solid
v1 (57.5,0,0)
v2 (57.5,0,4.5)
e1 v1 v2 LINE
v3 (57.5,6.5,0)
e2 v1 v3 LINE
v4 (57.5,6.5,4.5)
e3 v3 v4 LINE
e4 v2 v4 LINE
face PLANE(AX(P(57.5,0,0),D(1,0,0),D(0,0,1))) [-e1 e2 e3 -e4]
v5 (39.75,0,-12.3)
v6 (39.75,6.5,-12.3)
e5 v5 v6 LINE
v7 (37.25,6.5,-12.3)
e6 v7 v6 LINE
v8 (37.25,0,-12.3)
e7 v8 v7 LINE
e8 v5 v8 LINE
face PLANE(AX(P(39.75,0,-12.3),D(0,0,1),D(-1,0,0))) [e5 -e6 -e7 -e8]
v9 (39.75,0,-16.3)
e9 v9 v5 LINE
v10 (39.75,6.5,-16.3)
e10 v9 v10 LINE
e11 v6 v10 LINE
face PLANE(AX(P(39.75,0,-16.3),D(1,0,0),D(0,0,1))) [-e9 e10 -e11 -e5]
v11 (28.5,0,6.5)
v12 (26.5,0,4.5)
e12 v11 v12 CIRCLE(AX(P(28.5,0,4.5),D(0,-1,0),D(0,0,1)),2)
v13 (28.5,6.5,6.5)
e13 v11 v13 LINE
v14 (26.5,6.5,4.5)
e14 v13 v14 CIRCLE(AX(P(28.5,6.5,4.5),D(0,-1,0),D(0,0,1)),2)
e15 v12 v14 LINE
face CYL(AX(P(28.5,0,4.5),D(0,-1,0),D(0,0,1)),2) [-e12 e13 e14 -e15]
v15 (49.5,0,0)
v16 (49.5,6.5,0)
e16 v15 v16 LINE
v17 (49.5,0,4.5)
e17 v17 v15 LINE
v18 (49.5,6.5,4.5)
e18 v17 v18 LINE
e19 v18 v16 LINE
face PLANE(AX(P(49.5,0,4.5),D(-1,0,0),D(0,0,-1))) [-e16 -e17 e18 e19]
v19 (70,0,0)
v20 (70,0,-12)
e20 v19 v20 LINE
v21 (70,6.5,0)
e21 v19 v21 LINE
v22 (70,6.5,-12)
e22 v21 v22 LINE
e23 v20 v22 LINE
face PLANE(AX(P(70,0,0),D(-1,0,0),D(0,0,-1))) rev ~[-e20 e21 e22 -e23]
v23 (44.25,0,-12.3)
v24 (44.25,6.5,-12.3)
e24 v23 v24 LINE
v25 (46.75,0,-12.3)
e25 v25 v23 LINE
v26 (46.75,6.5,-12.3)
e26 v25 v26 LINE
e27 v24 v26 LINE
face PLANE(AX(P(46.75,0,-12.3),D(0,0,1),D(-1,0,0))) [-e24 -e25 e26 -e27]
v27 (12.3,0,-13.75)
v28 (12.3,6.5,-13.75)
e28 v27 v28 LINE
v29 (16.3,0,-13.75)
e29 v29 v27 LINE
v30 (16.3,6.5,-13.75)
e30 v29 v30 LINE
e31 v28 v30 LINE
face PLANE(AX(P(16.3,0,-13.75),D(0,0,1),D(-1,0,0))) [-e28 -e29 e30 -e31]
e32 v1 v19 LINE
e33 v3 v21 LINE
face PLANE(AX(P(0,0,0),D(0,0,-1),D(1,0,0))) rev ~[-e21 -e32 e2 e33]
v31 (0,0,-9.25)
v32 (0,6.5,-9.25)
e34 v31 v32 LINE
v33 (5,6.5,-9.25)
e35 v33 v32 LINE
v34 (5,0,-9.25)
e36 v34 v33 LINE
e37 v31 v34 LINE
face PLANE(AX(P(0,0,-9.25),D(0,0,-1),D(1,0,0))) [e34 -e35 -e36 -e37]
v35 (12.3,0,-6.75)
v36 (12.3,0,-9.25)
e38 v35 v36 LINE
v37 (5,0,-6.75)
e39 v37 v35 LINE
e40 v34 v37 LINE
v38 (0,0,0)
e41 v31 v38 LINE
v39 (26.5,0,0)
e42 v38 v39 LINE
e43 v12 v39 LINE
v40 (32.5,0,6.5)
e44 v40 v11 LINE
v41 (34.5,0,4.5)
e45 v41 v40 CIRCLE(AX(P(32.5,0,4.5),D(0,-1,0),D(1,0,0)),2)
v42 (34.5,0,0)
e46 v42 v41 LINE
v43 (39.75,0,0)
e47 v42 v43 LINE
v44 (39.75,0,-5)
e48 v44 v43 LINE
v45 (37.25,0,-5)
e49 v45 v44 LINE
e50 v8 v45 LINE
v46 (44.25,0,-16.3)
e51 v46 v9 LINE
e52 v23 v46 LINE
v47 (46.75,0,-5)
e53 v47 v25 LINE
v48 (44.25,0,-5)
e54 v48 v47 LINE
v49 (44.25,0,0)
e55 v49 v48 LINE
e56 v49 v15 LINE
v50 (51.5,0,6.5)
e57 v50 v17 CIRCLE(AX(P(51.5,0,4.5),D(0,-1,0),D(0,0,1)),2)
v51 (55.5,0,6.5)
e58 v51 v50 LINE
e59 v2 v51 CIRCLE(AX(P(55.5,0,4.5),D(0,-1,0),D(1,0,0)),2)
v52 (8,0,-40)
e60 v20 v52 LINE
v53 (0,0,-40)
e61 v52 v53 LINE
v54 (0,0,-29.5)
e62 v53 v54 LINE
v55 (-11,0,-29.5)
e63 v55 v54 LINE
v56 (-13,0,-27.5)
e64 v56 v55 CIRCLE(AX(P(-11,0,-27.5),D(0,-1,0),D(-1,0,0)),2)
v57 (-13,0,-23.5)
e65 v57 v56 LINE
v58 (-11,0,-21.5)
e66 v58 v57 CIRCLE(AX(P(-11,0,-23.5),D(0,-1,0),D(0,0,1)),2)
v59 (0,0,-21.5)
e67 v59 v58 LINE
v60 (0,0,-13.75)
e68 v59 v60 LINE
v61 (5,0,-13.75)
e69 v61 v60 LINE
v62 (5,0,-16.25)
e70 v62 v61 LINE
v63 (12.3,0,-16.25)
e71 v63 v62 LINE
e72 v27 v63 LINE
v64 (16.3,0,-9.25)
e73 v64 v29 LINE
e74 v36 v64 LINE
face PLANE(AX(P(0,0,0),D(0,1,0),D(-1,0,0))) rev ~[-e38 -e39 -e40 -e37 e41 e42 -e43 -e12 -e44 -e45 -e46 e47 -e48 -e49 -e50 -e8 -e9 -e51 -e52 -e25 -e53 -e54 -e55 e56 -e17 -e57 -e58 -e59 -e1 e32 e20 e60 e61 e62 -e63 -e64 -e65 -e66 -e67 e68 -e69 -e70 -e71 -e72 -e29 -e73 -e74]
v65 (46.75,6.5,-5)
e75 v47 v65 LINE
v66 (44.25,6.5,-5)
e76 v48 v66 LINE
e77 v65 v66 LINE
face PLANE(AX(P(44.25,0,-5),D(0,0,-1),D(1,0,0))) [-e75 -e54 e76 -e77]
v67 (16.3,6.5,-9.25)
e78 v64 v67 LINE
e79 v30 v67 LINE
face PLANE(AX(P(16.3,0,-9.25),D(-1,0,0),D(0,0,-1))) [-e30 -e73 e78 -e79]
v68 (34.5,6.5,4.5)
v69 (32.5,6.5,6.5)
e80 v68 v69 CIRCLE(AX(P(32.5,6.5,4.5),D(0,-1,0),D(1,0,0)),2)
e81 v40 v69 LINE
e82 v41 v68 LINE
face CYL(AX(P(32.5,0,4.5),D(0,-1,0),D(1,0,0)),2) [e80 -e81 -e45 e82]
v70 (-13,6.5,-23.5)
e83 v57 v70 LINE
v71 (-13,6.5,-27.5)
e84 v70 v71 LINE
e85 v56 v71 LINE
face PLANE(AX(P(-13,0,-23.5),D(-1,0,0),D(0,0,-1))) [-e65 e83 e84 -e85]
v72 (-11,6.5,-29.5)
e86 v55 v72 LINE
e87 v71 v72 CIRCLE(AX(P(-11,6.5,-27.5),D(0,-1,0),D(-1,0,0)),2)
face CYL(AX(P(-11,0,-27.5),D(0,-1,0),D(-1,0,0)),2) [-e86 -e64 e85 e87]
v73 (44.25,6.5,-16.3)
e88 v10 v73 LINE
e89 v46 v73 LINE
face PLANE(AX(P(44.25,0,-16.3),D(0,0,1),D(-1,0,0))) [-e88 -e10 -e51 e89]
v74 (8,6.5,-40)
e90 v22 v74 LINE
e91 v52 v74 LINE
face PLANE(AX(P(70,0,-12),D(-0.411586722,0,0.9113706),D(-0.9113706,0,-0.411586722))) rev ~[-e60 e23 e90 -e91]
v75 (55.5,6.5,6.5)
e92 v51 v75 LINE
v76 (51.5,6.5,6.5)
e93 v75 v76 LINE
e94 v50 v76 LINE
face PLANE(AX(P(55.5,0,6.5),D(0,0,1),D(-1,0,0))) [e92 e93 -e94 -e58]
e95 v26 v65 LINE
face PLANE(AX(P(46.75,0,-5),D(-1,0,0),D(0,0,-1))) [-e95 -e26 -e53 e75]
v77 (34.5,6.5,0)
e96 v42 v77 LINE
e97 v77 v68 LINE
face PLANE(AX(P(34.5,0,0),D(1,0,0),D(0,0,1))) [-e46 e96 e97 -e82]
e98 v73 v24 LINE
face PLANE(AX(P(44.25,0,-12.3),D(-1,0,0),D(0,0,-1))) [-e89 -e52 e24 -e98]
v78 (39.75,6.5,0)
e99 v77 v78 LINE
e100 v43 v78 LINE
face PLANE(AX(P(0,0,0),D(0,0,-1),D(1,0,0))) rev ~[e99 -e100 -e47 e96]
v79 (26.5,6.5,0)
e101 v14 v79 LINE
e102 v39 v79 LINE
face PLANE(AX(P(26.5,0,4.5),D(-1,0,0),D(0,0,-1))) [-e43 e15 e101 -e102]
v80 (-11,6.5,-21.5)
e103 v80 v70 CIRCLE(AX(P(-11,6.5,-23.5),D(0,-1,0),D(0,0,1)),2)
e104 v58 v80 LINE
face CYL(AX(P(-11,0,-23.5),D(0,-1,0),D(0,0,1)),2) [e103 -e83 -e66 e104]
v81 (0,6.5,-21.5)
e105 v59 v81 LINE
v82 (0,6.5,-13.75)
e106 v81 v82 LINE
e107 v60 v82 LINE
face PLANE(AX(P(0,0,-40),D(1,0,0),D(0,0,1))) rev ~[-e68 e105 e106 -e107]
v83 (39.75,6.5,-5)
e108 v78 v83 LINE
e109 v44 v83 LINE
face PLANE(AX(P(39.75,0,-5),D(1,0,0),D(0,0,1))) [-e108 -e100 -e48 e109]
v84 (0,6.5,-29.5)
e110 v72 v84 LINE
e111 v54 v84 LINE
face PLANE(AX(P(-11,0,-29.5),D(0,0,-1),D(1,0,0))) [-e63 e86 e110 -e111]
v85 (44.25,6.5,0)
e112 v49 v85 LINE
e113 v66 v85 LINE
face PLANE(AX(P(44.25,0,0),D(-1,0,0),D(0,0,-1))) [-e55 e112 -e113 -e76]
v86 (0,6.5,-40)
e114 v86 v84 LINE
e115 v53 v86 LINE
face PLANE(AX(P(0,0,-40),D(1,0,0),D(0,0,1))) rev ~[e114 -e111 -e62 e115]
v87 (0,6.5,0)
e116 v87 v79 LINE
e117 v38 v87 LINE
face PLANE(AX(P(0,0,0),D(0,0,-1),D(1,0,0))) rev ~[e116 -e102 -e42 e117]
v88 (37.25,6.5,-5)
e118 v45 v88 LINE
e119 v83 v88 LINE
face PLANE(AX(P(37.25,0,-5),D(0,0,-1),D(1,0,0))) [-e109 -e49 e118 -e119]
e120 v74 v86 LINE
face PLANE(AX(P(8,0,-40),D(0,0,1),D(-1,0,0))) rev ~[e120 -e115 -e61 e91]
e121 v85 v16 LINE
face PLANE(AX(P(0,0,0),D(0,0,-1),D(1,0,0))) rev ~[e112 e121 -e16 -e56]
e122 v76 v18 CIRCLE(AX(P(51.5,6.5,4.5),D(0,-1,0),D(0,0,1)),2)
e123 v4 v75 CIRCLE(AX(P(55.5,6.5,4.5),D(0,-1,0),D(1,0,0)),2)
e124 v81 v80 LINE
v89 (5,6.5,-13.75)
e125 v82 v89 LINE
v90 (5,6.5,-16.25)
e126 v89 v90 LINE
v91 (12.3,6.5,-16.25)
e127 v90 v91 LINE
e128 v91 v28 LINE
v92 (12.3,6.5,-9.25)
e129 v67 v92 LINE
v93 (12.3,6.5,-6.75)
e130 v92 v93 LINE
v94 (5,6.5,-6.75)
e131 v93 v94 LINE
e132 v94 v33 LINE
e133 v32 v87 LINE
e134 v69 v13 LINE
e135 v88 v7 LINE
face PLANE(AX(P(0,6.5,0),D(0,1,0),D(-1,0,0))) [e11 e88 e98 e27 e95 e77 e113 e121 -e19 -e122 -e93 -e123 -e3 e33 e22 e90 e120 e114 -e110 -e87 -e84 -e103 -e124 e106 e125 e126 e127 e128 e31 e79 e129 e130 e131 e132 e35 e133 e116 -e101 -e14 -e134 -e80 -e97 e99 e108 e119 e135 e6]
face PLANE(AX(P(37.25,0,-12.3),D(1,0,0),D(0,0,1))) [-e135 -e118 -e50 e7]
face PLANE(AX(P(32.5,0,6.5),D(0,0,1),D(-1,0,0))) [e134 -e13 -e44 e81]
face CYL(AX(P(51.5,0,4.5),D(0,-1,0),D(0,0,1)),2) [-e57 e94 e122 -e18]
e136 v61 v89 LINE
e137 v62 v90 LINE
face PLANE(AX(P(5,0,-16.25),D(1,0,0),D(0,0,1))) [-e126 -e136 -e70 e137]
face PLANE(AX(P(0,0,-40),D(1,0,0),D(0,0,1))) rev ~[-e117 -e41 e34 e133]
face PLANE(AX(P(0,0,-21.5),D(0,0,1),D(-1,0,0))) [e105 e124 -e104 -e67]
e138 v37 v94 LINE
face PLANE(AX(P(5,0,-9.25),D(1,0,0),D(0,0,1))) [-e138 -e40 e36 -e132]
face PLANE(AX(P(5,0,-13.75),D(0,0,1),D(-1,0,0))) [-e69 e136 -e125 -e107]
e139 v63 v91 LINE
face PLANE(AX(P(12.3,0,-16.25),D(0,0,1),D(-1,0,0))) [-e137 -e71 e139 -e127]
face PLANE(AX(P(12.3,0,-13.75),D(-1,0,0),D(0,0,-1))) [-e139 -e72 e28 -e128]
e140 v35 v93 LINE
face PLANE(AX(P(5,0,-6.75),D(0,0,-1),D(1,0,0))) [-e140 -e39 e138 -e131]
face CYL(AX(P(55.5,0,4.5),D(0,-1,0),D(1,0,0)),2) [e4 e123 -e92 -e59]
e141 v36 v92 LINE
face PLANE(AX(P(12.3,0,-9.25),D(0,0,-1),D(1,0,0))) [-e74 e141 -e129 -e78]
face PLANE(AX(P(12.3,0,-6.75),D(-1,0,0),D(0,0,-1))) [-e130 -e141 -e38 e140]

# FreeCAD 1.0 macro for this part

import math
import FreeCAD as App
import Part
import Sketcher

V = App.Vector
Q = App.Units.Quantity

doc = App.newDocument("Part")
body = doc.addObject("PartDesign::Body", "Body")

sketch1 = body.newObject("Sketcher::SketchObject", "Sketch")
sketch1.AttachmentSupport = (doc.getObject("XZ_Plane"), [""])
sketch1.MapMode = "FlatFace"
sketch1.addGeometry([
    Part.LineSegment(V(8, -40, 0), V(0, -40, 0)),
    Part.LineSegment(V(0, -40, 0), V(0, 0, 0)),
    Part.LineSegment(V(0, 0, 0), V(70, 0, 0)),
    Part.LineSegment(V(70, 0, 0), V(70, -12, 0)),
    Part.LineSegment(V(70, -12, 0), V(8, -40, 0)),
], False)
sketch1.addConstraint([
    Sketcher.Constraint("Coincident", 0, 2, 1, 1),
    Sketcher.Constraint("Coincident", 1, 2, 2, 1),
    Sketcher.Constraint("Coincident", 2, 2, 3, 1),
    Sketcher.Constraint("Coincident", 3, 2, 4, 1),
    Sketcher.Constraint("Coincident", 4, 2, 0, 1),
    Sketcher.Constraint("Horizontal", 0),
    Sketcher.Constraint("Vertical", 1),
    Sketcher.Constraint("Horizontal", 2),
    Sketcher.Constraint("Vertical", 3),
    Sketcher.Constraint("Coincident", 1, 2, -1, 1),
    Sketcher.Constraint("DistanceX", 0, 2, 0, 1, Q("8 mm")),
    Sketcher.Constraint("DistanceX", 2, 1, 2, 2, Q("70 mm")),
    Sketcher.Constraint("DistanceY", 1, 1, 1, 2, Q("40 mm")),
    Sketcher.Constraint("DistanceY", 3, 2, 3, 1, Q("12 mm")),
])
pad1 = body.newObject("PartDesign::Pad", "Pad")
pad1.Profile = sketch1
pad1.Length = 6.5
pad1.Reversed = True

sketch2 = body.newObject("Sketcher::SketchObject", "Sketch001")
sketch2.AttachmentSupport = (doc.getObject("XZ_Plane"), [""])
sketch2.MapMode = "FlatFace"
sketch2.addGeometry([
    Part.LineSegment(V(5, -9.2, 0), V(0, -9.2, 0)),
    Part.LineSegment(V(0, -9.2, 0), V(0, -13.8, 0)),
    Part.LineSegment(V(0, -13.8, 0), V(5, -13.8, 0)),
    Part.LineSegment(V(5, -13.8, 0), V(5, -16.2, 0)),
    Part.LineSegment(V(5, -16.2, 0), V(12.3, -16.2, 0)),
    Part.LineSegment(V(12.3, -16.2, 0), V(12.3, -13.8, 0)),
    Part.LineSegment(V(12.3, -13.8, 0), V(16.3, -13.8, 0)),
    Part.LineSegment(V(16.3, -13.8, 0), V(16.3, -9.2, 0)),
    Part.LineSegment(V(16.3, -9.2, 0), V(12.3, -9.2, 0)),
    Part.LineSegment(V(12.3, -9.2, 0), V(12.3, -6.8, 0)),
    Part.LineSegment(V(12.3, -6.8, 0), V(5, -6.8, 0)),
    Part.LineSegment(V(5, -6.8, 0), V(5, -9.2, 0)),
    Part.LineSegment(V(44.2, 0, 0), V(39.8, 0, 0)),
    Part.LineSegment(V(39.8, 0, 0), V(39.8, -5, 0)),
    Part.LineSegment(V(39.8, -5, 0), V(37.2, -5, 0)),
    Part.LineSegment(V(37.2, -5, 0), V(37.2, -12.3, 0)),
    Part.LineSegment(V(37.2, -12.3, 0), V(39.8, -12.3, 0)),
    Part.LineSegment(V(39.8, -12.3, 0), V(39.8, -16.3, 0)),
    Part.LineSegment(V(39.8, -16.3, 0), V(44.2, -16.3, 0)),
    Part.LineSegment(V(44.2, -16.3, 0), V(44.2, -12.3, 0)),
    Part.LineSegment(V(44.2, -12.3, 0), V(46.8, -12.3, 0)),
    Part.LineSegment(V(46.8, -12.3, 0), V(46.8, -5, 0)),
    Part.LineSegment(V(46.8, -5, 0), V(44.2, -5, 0)),
    Part.LineSegment(V(44.2, -5, 0), V(44.2, 0, 0)),
], False)
sketch2.addConstraint([
    Sketcher.Constraint("Coincident", 0, 2, 1, 1),
    Sketcher.Constraint("Coincident", 1, 2, 2, 1),
    Sketcher.Constraint("Coincident", 2, 2, 3, 1),
    Sketcher.Constraint("Coincident", 3, 2, 4, 1),
    Sketcher.Constraint("Coincident", 4, 2, 5, 1),
    Sketcher.Constraint("Coincident", 5, 2, 6, 1),
    Sketcher.Constraint("Coincident", 6, 2, 7, 1),
    Sketcher.Constraint("Coincident", 7, 2, 8, 1),
    Sketcher.Constraint("Coincident", 8, 2, 9, 1),
    Sketcher.Constraint("Coincident", 9, 2, 10, 1),
    Sketcher.Constraint("Coincident", 10, 2, 11, 1),
    Sketcher.Constraint("Coincident", 11, 2, 0, 1),
    Sketcher.Constraint("Coincident", 12, 2, 13, 1),
    Sketcher.Constraint("Coincident", 13, 2, 14, 1),
    Sketcher.Constraint("Coincident", 14, 2, 15, 1),
    Sketcher.Constraint("Coincident", 15, 2, 16, 1),
    Sketcher.Constraint("Coincident", 16, 2, 17, 1),
    Sketcher.Constraint("Coincident", 17, 2, 18, 1),
    Sketcher.Constraint("Coincident", 18, 2, 19, 1),
    Sketcher.Constraint("Coincident", 19, 2, 20, 1),
    Sketcher.Constraint("Coincident", 20, 2, 21, 1),
    Sketcher.Constraint("Coincident", 21, 2, 22, 1),
    Sketcher.Constraint("Coincident", 22, 2, 23, 1),
    Sketcher.Constraint("Coincident", 23, 2, 12, 1),
    Sketcher.Constraint("Horizontal", 0),
    Sketcher.Constraint("Vertical", 1),
    Sketcher.Constraint("Horizontal", 2),
    Sketcher.Constraint("Vertical", 3),
    Sketcher.Constraint("Horizontal", 4),
    Sketcher.Constraint("Vertical", 5),
    Sketcher.Constraint("Horizontal", 6),
    Sketcher.Constraint("Vertical", 7),
    Sketcher.Constraint("Horizontal", 8),
    Sketcher.Constraint("Vertical", 9),
    Sketcher.Constraint("Horizontal", 10),
    Sketcher.Constraint("Vertical", 11),
    Sketcher.Constraint("Horizontal", 12),
    Sketcher.Constraint("Vertical", 13),
    Sketcher.Constraint("Horizontal", 14),
    Sketcher.Constraint("Vertical", 15),
    Sketcher.Constraint("Horizontal", 16),
    Sketcher.Constraint("Vertical", 17),
    Sketcher.Constraint("Horizontal", 18),
    Sketcher.Constraint("Vertical", 19),
    Sketcher.Constraint("Horizontal", 20),
    Sketcher.Constraint("Vertical", 21),
    Sketcher.Constraint("Horizontal", 22),
    Sketcher.Constraint("Vertical", 23),
    Sketcher.Constraint("PointOnObject", 0, 2, -2),
    Sketcher.Constraint("PointOnObject", 12, 2, -1),
    Sketcher.Constraint("Horizontal", 2, 2, 5, 2),
    Sketcher.Constraint("Horizontal", 0, 2, 7, 2),
    Sketcher.Constraint("Horizontal", 16, 2, 19, 2),
    Sketcher.Constraint("Horizontal", 14, 2, 21, 2),
    Sketcher.Constraint("Vertical", 5, 2, 8, 2),
    Sketcher.Constraint("Vertical", 3, 2, 10, 2),
    Sketcher.Constraint("Vertical", 13, 2, 16, 2),
    Sketcher.Constraint("Vertical", 19, 2, 22, 2),
    Sketcher.Constraint("Equal", 16, 20),
    Sketcher.Constraint("Equal", 18, 1),
    Sketcher.Constraint("Equal", 22, 3),
    Sketcher.Constraint("Equal", 5, 9),
    Sketcher.Constraint("Equal", 2, 13),
    Sketcher.Constraint("Equal", 10, 15),
    Sketcher.Constraint("Equal", 8, 17),
    Sketcher.Constraint("DistanceX", 0, 2, 0, 1, Q("5 mm")),
    Sketcher.Constraint("DistanceX", 6, 1, 6, 2, Q("4 mm")),
    Sketcher.Constraint("DistanceX", 4, 1, 4, 2, Q("7.3 mm")),
    Sketcher.Constraint("DistanceX", 12, 2, 12, 1, Q("4.5 mm")),
    Sketcher.Constraint("DistanceX", 14, 2, 14, 1, Q("2.5 mm")),
    Sketcher.Constraint("DistanceY", 0, 2, -1, 1, Q("9.25 mm")),
    Sketcher.Constraint("DistanceX", -1, 1, 12, 2, Q("39.75 mm")),
])
pocket1 = body.newObject("PartDesign::Pocket", "Pocket")
pocket1.Profile = sketch2
pocket1.Type = "ThroughAll"

sketch3 = body.newObject("Sketcher::SketchObject", "Sketch002")
sketch3.AttachmentSupport = (doc.getObject("XZ_Plane"), [""])
sketch3.MapMode = "FlatFace"
sketch3.addGeometry([
    Part.LineSegment(V(26.5, 0, 0), V(34.5, 0, 0)),
    Part.LineSegment(V(34.5, 0, 0), V(34.5, 4.5, 0)),
    Part.ArcOfCircle(Part.Circle(V(32.5, 4.5, 0), V(0, 0, 1), 2), math.radians(0), math.radians(90)),
    Part.LineSegment(V(32.5, 6.5, 0), V(28.5, 6.5, 0)),
    Part.ArcOfCircle(Part.Circle(V(28.5, 4.5, 0), V(0, 0, 1), 2), math.radians(90), math.radians(180)),
    Part.LineSegment(V(26.5, 4.5, 0), V(26.5, 0, 0)),
    Part.LineSegment(V(0, -29.5, 0), V(0, -21.5, 0)),
    Part.LineSegment(V(0, -21.5, 0), V(-11, -21.5, 0)),
    Part.ArcOfCircle(Part.Circle(V(-11, -23.5, 0), V(0, 0, 1), 2), math.radians(90), math.radians(180)),
    Part.LineSegment(V(-13, -23.5, 0), V(-13, -27.5, 0)),
    Part.ArcOfCircle(Part.Circle(V(-11, -27.5, 0), V(0, 0, 1), 2), math.radians(180), math.radians(270)),
    Part.LineSegment(V(-11, -29.5, 0), V(0, -29.5, 0)),
    Part.LineSegment(V(49.5, 0, 0), V(57.5, 0, 0)),
    Part.LineSegment(V(57.5, 0, 0), V(57.5, 4.5, 0)),
    Part.ArcOfCircle(Part.Circle(V(55.5, 4.5, 0), V(0, 0, 1), 2), math.radians(0), math.radians(90)),
    Part.LineSegment(V(55.5, 6.5, 0), V(51.5, 6.5, 0)),
    Part.ArcOfCircle(Part.Circle(V(51.5, 4.5, 0), V(0, 0, 1), 2), math.radians(90), math.radians(180)),
    Part.LineSegment(V(49.5, 4.5, 0), V(49.5, 0, 0)),
], False)
sketch3.addConstraint([
    Sketcher.Constraint("Coincident", 0, 2, 1, 1),
    Sketcher.Constraint("Tangent", 1, 2, 2, 1),
    Sketcher.Constraint("Tangent", 2, 2, 3, 1),
    Sketcher.Constraint("Tangent", 3, 2, 4, 1),
    Sketcher.Constraint("Tangent", 4, 2, 5, 1),
    Sketcher.Constraint("Coincident", 5, 2, 0, 1),
    Sketcher.Constraint("Coincident", 6, 2, 7, 1),
    Sketcher.Constraint("Tangent", 7, 2, 8, 1),
    Sketcher.Constraint("Tangent", 8, 2, 9, 1),
    Sketcher.Constraint("Tangent", 9, 2, 10, 1),
    Sketcher.Constraint("Tangent", 10, 2, 11, 1),
    Sketcher.Constraint("Coincident", 11, 2, 6, 1),
    Sketcher.Constraint("Coincident", 12, 2, 13, 1),
    Sketcher.Constraint("Tangent", 13, 2, 14, 1),
    Sketcher.Constraint("Tangent", 14, 2, 15, 1),
    Sketcher.Constraint("Tangent", 15, 2, 16, 1),
    Sketcher.Constraint("Tangent", 16, 2, 17, 1),
    Sketcher.Constraint("Coincident", 17, 2, 12, 1),
    Sketcher.Constraint("Horizontal", 0),
    Sketcher.Constraint("Vertical", 1),
    Sketcher.Constraint("Horizontal", 3),
    Sketcher.Constraint("Vertical", 5),
    Sketcher.Constraint("Vertical", 6),
    Sketcher.Constraint("Horizontal", 7),
    Sketcher.Constraint("Vertical", 9),
    Sketcher.Constraint("Horizontal", 11),
    Sketcher.Constraint("Horizontal", 12),
    Sketcher.Constraint("Vertical", 13),
    Sketcher.Constraint("Horizontal", 15),
    Sketcher.Constraint("Vertical", 17),
    Sketcher.Constraint("Equal", 2, 4),
    Sketcher.Constraint("Equal", 4, 8),
    Sketcher.Constraint("Equal", 8, 10),
    Sketcher.Constraint("Equal", 10, 14),
    Sketcher.Constraint("Equal", 14, 16),
    Sketcher.Constraint("PointOnObject", 0, 2, -1),
    Sketcher.Constraint("PointOnObject", 6, 2, -2),
    Sketcher.Constraint("PointOnObject", 12, 2, -1),
    Sketcher.Constraint("Horizontal", 4, 3, 14, 3),
    Sketcher.Constraint("Equal", 0, 12),
    Sketcher.Constraint("Equal", 12, 6),
    Sketcher.Constraint("Radius", 2, Q("2 mm")),
    Sketcher.Constraint("DistanceX", 0, 1, 0, 2, Q("8 mm")),
    Sketcher.Constraint("DistanceX", 8, 2, -1, 1, Q("13 mm")),
    Sketcher.Constraint("DistanceY", -1, 1, 2, 2, Q("6.5 mm")),
    Sketcher.Constraint("DistanceY", 8, 3, 4, 3, Q("28 mm")),
    Sketcher.Constraint("DistanceX", 2, 3, 14, 3, Q("23 mm")),
    Sketcher.Constraint("DistanceX", -1, 1, 2, 3, Q("32.5 mm")),
])
pad2 = body.newObject("PartDesign::Pad", "Pad001")
pad2.Profile = sketch3
pad2.Length = 6.5
pad2.Reversed = True

doc.recompute()
